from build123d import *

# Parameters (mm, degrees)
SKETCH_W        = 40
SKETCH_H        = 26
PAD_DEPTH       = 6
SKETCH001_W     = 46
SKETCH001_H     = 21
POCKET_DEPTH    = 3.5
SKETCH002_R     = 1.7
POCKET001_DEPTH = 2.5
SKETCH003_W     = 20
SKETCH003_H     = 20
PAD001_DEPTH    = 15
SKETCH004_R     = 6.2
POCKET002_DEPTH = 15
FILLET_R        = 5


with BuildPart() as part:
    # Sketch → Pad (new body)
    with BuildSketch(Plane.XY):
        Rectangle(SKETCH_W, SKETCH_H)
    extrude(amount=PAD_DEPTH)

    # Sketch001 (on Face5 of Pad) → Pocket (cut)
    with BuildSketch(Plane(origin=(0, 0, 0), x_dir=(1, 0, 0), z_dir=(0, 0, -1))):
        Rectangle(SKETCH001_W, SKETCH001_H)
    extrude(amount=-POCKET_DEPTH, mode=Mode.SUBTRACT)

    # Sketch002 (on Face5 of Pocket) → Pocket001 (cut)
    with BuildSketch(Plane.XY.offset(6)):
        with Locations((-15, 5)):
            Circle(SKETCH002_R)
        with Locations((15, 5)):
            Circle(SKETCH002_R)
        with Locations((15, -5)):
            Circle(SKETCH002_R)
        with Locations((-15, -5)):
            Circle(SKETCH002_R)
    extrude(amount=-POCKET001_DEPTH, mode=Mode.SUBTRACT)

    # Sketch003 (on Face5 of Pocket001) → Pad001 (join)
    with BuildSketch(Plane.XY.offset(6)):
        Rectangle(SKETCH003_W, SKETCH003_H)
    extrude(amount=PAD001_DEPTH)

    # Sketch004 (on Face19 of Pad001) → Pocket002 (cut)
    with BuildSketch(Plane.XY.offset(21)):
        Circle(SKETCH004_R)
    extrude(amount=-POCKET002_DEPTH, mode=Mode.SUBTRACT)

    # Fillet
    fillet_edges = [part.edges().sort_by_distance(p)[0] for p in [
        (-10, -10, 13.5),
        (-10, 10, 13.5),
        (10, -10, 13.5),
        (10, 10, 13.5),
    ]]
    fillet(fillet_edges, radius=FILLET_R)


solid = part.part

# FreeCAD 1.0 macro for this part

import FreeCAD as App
import Part
import Sketcher


def edges_at(feature, points):
    """Names of the edges that pass closest to the given points."""
    edges = feature.Shape.Edges
    near = lambda p: min(range(len(edges)), key=lambda i: edges[i].distToShape(Part.Vertex(*p))[0])
    return sorted({f"Edge{near(p) + 1}" for p in points})

doc = App.newDocument("Part")
body = doc.addObject("PartDesign::Body", "Body")

sketch1 = body.newObject("Sketcher::SketchObject", "Sketch")
sketch1.AttachmentSupport = (doc.getObject("XY_Plane"), [""])
sketch1.MapMode = "FlatFace"
sketch1.addGeometry(Part.LineSegment(App.Vector(-20, 13, 0), App.Vector(-20, -13, 0)), False)
sketch1.addGeometry(Part.LineSegment(App.Vector(-20, -13, 0), App.Vector(20, -13, 0)), False)
sketch1.addGeometry(Part.LineSegment(App.Vector(20, -13, 0), App.Vector(20, 13, 0)), False)
sketch1.addGeometry(Part.LineSegment(App.Vector(20, 13, 0), App.Vector(-20, 13, 0)), False)
sketch1.addConstraint(Sketcher.Constraint("Coincident", 0, 2, 1, 1))
sketch1.addConstraint(Sketcher.Constraint("Coincident", 1, 2, 2, 1))
sketch1.addConstraint(Sketcher.Constraint("Coincident", 2, 2, 3, 1))
sketch1.addConstraint(Sketcher.Constraint("Coincident", 3, 2, 0, 1))
sketch1.addConstraint(Sketcher.Constraint("Vertical", 0))
sketch1.addConstraint(Sketcher.Constraint("Horizontal", 1))
sketch1.addConstraint(Sketcher.Constraint("Vertical", 2))
sketch1.addConstraint(Sketcher.Constraint("Horizontal", 3))
sketch1.addConstraint(Sketcher.Constraint("Symmetric", 0, 2, 2, 2, -1, 1))
sketch1.addConstraint(Sketcher.Constraint("DistanceX", 1, 1, 1, 2, 40.0))
sketch1.addConstraint(Sketcher.Constraint("DistanceY", 0, 2, 0, 1, 26.0))
pad1 = body.newObject("PartDesign::Pad", "Pad")
pad1.Profile = sketch1
pad1.Length = 6

sketch2 = body.newObject("Sketcher::SketchObject", "Sketch001")
sketch2.AttachmentSupport = (doc.getObject("XY_Plane"), [""])
sketch2.MapMode = "FlatFace"
sketch2.addGeometry(Part.LineSegment(App.Vector(-23, -10, 0), App.Vector(-23, 10, 0)), False)
sketch2.addGeometry(Part.LineSegment(App.Vector(-23, 10, 0), App.Vector(23, 10, 0)), False)
sketch2.addGeometry(Part.LineSegment(App.Vector(23, 10, 0), App.Vector(23, -10, 0)), False)
sketch2.addGeometry(Part.LineSegment(App.Vector(23, -10, 0), App.Vector(-23, -10, 0)), False)
sketch2.addConstraint(Sketcher.Constraint("Coincident", 0, 2, 1, 1))
sketch2.addConstraint(Sketcher.Constraint("Coincident", 1, 2, 2, 1))
sketch2.addConstraint(Sketcher.Constraint("Coincident", 2, 2, 3, 1))
sketch2.addConstraint(Sketcher.Constraint("Coincident", 3, 2, 0, 1))
sketch2.addConstraint(Sketcher.Constraint("Vertical", 0))
sketch2.addConstraint(Sketcher.Constraint("Horizontal", 1))
sketch2.addConstraint(Sketcher.Constraint("Vertical", 2))
sketch2.addConstraint(Sketcher.Constraint("Horizontal", 3))
sketch2.addConstraint(Sketcher.Constraint("Symmetric", 0, 2, 2, 2, -1, 1))
sketch2.addConstraint(Sketcher.Constraint("DistanceX", 1, 1, 1, 2, 46.0))
sketch2.addConstraint(Sketcher.Constraint("DistanceY", 0, 1, 0, 2, 21.0))
pocket1 = body.newObject("PartDesign::Pocket", "Pocket")
pocket1.Profile = sketch2
pocket1.Length = 3.5
pocket1.Reversed = True

sketch3 = body.newObject("Sketcher::SketchObject", "Sketch002")
sketch3.AttachmentSupport = (doc.getObject("XY_Plane"), [""])
sketch3.MapMode = "FlatFace"
sketch3.AttachmentOffset = App.Placement(App.Vector(0, 0, 6), App.Rotation())
sketch3.addGeometry(Part.Circle(App.Vector(-15, 5, 0), App.Vector(0, 0, 1), 1.7), False)
sketch3.addGeometry(Part.Circle(App.Vector(15, 5, 0), App.Vector(0, 0, 1), 1.7), False)
sketch3.addGeometry(Part.Circle(App.Vector(15, -5, 0), App.Vector(0, 0, 1), 1.7), False)
sketch3.addGeometry(Part.Circle(App.Vector(-15, -5, 0), App.Vector(0, 0, 1), 1.7), False)
sketch3.addConstraint(Sketcher.Constraint("Equal", 0, 1))
sketch3.addConstraint(Sketcher.Constraint("Equal", 1, 2))
sketch3.addConstraint(Sketcher.Constraint("Equal", 2, 3))
sketch3.addConstraint(Sketcher.Constraint("Symmetric", 0, 3, 2, 3, -1, 1))
sketch3.addConstraint(Sketcher.Constraint("Symmetric", 1, 3, 3, 3, -1, 1))
sketch3.addConstraint(Sketcher.Constraint("Symmetric", 0, 3, 1, 3, -2))
sketch3.addConstraint(Sketcher.Constraint("Diameter", 0, 3.4))
sketch3.addConstraint(Sketcher.Constraint("DistanceX", 0, 3, -1, 1, 15.0))
sketch3.addConstraint(Sketcher.Constraint("DistanceY", -1, 1, 0, 3, 5.0))
pocket2 = body.newObject("PartDesign::Pocket", "Pocket001")
pocket2.Profile = sketch3
pocket2.Length = 2.5

sketch4 = body.newObject("Sketcher::SketchObject", "Sketch003")
sketch4.AttachmentSupport = (doc.getObject("XY_Plane"), [""])
sketch4.MapMode = "FlatFace"
sketch4.AttachmentOffset = App.Placement(App.Vector(0, 0, 6), App.Rotation())
sketch4.addGeometry(Part.LineSegment(App.Vector(-10, 10, 0), App.Vector(-10, -10, 0)), False)
sketch4.addGeometry(Part.LineSegment(App.Vector(-10, -10, 0), App.Vector(10, -10, 0)), False)
sketch4.addGeometry(Part.LineSegment(App.Vector(10, -10, 0), App.Vector(10, 10, 0)), False)
sketch4.addGeometry(Part.LineSegment(App.Vector(10, 10, 0), App.Vector(-10, 10, 0)), False)
sketch4.addConstraint(Sketcher.Constraint("Coincident", 0, 2, 1, 1))
sketch4.addConstraint(Sketcher.Constraint("Coincident", 1, 2, 2, 1))
sketch4.addConstraint(Sketcher.Constraint("Coincident", 2, 2, 3, 1))
sketch4.addConstraint(Sketcher.Constraint("Coincident", 3, 2, 0, 1))
sketch4.addConstraint(Sketcher.Constraint("Vertical", 0))
sketch4.addConstraint(Sketcher.Constraint("Horizontal", 1))
sketch4.addConstraint(Sketcher.Constraint("Vertical", 2))
sketch4.addConstraint(Sketcher.Constraint("Horizontal", 3))
sketch4.addConstraint(Sketcher.Constraint("Symmetric", 0, 2, 2, 2, -1, 1))
sketch4.addConstraint(Sketcher.Constraint("Equal", 3, 0))
sketch4.addConstraint(Sketcher.Constraint("DistanceX", 1, 1, 1, 2, 20.0))
pad2 = body.newObject("PartDesign::Pad", "Pad001")
pad2.Profile = sketch4
pad2.Length = 15

sketch5 = body.newObject("Sketcher::SketchObject", "Sketch004")
sketch5.AttachmentSupport = (doc.getObject("XY_Plane"), [""])
sketch5.MapMode = "FlatFace"
sketch5.AttachmentOffset = App.Placement(App.Vector(0, 0, 21), App.Rotation())
sketch5.addGeometry(Part.Circle(App.Vector(0, 0, 0), App.Vector(0, 0, 1), 6), False)
sketch5.addConstraint(Sketcher.Constraint("Coincident", 0, 3, -1, 1))
sketch5.addConstraint(Sketcher.Constraint("Diameter", 0, 12.4))
pocket3 = body.newObject("PartDesign::Pocket", "Pocket002")
pocket3.Profile = sketch5
pocket3.Length = 15
doc.recompute()

fillet = body.newObject("PartDesign::Fillet", "Fillet")
fillet.Base = (pocket3, edges_at(pocket3, [
    (-10, -10, 13.5),
    (-10, 10, 13.5),
    (10, -10, 13.5),
    (10, 10, 13.5),
]))
fillet.Radius = 5

doc.recompute()
